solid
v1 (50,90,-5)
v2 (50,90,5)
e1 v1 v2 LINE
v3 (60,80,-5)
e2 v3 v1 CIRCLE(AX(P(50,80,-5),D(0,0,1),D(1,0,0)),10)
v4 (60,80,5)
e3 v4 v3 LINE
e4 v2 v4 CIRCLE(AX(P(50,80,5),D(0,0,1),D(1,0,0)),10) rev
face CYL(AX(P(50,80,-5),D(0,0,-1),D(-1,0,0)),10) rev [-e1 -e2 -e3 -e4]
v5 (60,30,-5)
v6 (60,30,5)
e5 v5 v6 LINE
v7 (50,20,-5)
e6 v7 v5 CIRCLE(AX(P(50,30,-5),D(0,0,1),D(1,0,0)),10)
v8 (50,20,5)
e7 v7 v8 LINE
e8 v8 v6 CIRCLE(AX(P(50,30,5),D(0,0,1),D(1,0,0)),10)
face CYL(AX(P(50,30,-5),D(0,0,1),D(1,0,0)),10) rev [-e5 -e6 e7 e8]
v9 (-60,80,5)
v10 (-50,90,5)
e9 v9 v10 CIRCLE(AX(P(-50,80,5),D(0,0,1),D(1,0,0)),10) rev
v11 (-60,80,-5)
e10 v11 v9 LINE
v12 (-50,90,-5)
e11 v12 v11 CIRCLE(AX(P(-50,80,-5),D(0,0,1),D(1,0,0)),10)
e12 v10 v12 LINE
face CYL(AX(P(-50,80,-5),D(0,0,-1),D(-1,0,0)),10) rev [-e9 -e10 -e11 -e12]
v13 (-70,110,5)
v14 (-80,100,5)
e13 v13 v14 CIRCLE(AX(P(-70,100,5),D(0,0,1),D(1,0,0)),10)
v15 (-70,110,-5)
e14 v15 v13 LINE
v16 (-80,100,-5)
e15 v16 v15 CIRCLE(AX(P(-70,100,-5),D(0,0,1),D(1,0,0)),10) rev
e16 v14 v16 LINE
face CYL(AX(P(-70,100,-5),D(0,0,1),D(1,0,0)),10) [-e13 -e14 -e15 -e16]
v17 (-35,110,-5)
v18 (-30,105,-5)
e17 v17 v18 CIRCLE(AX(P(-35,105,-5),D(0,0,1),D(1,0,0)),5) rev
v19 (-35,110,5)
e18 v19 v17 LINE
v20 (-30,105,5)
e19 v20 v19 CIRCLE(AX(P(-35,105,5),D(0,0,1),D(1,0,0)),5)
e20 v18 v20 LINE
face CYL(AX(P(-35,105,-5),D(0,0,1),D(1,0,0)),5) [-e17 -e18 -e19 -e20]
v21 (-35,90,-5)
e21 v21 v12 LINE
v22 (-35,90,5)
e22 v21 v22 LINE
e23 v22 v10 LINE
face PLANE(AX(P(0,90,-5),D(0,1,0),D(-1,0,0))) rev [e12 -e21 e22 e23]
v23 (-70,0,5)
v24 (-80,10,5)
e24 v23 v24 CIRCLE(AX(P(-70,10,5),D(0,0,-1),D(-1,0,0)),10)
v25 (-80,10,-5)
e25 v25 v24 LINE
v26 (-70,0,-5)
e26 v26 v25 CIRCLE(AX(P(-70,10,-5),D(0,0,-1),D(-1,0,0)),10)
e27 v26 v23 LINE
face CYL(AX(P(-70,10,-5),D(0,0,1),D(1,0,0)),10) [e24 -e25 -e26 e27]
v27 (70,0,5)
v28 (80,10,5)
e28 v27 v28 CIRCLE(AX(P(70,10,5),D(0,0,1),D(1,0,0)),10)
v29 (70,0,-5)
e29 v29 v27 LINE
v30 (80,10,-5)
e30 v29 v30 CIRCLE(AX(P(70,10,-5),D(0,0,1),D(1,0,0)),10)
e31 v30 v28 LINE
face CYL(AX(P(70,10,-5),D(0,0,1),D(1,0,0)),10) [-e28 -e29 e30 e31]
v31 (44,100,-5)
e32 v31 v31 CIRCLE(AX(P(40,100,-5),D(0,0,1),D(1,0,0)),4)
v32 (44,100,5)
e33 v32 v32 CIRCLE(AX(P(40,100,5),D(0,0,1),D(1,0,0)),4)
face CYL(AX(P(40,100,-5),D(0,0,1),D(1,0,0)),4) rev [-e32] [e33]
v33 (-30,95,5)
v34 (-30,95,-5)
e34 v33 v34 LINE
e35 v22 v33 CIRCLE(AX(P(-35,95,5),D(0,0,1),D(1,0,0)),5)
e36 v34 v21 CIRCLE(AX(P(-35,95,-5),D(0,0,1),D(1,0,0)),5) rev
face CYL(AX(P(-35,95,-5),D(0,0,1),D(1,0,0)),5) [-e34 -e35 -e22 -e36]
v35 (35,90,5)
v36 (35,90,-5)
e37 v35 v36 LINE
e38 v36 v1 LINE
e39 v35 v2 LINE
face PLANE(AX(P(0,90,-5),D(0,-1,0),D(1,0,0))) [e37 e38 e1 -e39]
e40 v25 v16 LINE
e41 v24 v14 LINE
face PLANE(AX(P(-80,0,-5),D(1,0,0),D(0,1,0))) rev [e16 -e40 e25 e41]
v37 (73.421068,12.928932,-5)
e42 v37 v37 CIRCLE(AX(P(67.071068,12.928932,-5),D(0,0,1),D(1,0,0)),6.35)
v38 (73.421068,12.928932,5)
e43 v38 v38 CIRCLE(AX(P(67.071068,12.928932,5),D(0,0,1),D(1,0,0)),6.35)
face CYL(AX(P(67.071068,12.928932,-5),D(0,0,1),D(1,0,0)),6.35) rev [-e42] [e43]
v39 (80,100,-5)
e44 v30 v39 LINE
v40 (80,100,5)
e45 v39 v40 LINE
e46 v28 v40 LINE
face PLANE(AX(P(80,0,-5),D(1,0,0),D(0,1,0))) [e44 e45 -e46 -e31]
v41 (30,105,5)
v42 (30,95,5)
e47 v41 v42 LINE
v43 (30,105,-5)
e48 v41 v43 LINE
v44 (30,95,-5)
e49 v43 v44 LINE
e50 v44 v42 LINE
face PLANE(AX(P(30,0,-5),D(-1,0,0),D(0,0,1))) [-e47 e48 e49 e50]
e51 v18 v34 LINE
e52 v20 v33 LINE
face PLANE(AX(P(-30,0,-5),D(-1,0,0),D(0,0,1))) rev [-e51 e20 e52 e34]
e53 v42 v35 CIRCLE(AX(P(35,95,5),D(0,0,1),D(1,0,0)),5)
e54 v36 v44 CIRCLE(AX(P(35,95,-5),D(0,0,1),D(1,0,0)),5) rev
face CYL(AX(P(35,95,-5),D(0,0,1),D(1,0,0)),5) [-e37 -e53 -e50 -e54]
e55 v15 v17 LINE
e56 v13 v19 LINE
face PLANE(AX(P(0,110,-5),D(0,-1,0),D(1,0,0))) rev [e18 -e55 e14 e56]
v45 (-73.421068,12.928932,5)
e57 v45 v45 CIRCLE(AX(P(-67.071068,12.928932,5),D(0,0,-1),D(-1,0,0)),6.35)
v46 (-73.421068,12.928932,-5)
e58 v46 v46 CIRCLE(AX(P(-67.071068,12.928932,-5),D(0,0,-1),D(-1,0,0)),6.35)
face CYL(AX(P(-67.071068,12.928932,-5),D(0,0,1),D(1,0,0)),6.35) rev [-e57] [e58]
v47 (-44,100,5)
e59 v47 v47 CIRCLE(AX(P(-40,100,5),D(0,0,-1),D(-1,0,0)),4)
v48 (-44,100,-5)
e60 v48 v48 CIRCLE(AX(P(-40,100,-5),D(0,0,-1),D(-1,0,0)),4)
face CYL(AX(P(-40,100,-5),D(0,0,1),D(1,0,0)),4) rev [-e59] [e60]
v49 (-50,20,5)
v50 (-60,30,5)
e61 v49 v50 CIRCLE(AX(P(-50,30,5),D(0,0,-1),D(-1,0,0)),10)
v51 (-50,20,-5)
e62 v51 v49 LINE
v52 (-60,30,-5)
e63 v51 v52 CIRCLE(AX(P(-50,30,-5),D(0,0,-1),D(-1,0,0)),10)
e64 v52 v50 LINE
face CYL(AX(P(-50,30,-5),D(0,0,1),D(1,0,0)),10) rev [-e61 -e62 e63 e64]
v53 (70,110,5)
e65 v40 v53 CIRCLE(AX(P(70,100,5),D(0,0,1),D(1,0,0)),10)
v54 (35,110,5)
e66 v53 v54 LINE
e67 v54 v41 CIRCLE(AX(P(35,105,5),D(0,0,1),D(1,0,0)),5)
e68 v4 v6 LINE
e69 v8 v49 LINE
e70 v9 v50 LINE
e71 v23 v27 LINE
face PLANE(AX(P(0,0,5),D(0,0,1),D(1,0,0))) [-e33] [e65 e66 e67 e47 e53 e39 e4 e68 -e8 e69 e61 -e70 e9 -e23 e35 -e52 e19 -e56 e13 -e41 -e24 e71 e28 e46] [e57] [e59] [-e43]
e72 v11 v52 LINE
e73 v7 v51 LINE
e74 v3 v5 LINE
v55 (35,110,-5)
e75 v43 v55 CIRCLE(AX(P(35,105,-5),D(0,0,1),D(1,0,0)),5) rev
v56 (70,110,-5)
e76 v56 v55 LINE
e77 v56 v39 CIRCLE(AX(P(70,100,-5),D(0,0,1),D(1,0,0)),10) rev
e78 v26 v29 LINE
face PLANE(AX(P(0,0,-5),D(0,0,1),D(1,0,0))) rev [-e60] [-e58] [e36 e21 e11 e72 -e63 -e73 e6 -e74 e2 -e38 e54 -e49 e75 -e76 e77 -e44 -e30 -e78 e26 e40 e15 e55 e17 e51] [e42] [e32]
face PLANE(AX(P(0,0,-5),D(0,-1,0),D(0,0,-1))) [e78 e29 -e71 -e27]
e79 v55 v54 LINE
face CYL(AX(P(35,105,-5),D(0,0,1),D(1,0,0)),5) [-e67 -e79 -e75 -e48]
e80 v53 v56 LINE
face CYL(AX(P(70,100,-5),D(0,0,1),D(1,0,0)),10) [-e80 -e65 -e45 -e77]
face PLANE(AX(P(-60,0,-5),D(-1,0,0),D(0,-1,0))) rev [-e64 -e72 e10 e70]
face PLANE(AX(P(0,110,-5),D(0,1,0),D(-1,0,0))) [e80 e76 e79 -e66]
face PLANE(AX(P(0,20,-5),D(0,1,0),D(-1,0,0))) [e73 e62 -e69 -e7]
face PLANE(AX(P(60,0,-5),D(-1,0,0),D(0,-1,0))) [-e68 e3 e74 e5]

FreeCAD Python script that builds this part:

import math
import FreeCAD as App
import Part
import Sketcher


def edges_at(feature, points):
    """Names of the edges that pass closest to the given points."""
    edges = feature.Shape.Edges
    near = lambda p: min(range(len(edges)), key=lambda i: edges[i].distToShape(Part.Vertex(*p))[0])
    return sorted({f"Edge{near(p) + 1}" for p in points})

doc = App.newDocument("Part")
body = doc.addObject("PartDesign::Body", "Body")

# Sketch on XY plane
sketch1 = body.newObject("Sketcher::SketchObject", "Sketch")
sketch1.AttachmentSupport = (doc.getObject("XY_Plane"), [""])
sketch1.MapMode = "FlatFace"
sketch1.addGeometry([
    Part.LineSegment(App.Vector(0, 20, 0), App.Vector(0, 0, 0)),  # 0
    Part.LineSegment(App.Vector(0, 0, 0), App.Vector(70, 0, 0)),  # 1
    Part.ArcOfCircle(Part.Circle(App.Vector(70, 10, 0), App.Vector(0, 0, 1), 10), math.radians(-90), math.radians(0)),  # 2
    Part.LineSegment(App.Vector(80, 10, 0), App.Vector(80, 110, 0)),  # 3
    Part.LineSegment(App.Vector(80, 110, 0), App.Vector(30, 110, 0)),  # 4
    Part.LineSegment(App.Vector(30, 110, 0), App.Vector(30, 90, 0)),  # 5
    Part.LineSegment(App.Vector(30, 90, 0), App.Vector(60, 90, 0)),  # 6
    Part.LineSegment(App.Vector(60, 90, 0), App.Vector(60, 30, 0)),  # 7
    Part.ArcOfCircle(Part.Circle(App.Vector(50, 30, 0), App.Vector(0, 0, 1), 10), math.radians(-90), math.radians(0)),  # 8
    Part.LineSegment(App.Vector(50, 20, 0), App.Vector(0, 20, 0)),  # 9
    Part.Circle(App.Vector(67.1, 12.9, 0), App.Vector(0, 0, 1), 6.3),  # 10
    Part.Circle(App.Vector(40, 100, 0), App.Vector(0, 0, 1), 4),  # 11
], False)
sketch1.addConstraint([
    Sketcher.Constraint("Coincident", 0, 2, 1, 1),
    Sketcher.Constraint("Tangent", 1, 2, 2, 1),
    Sketcher.Constraint("Tangent", 2, 2, 3, 1),
    Sketcher.Constraint("Coincident", 3, 2, 4, 1),
    Sketcher.Constraint("Coincident", 4, 2, 5, 1),
    Sketcher.Constraint("Coincident", 5, 2, 6, 1),
    Sketcher.Constraint("Coincident", 6, 2, 7, 1),
    Sketcher.Constraint("Tangent", 7, 2, 8, 2),
    Sketcher.Constraint("Tangent", 8, 1, 9, 1),
    Sketcher.Constraint("Coincident", 9, 2, 0, 1),
    Sketcher.Constraint("Vertical", 0),
    Sketcher.Constraint("Horizontal", 1),
    Sketcher.Constraint("Vertical", 3),
    Sketcher.Constraint("Horizontal", 4),
    Sketcher.Constraint("Vertical", 5),
    Sketcher.Constraint("Horizontal", 6),
    Sketcher.Constraint("Vertical", 7),
    Sketcher.Constraint("Horizontal", 9),
    Sketcher.Constraint("Coincident", 0, 2, -1, 1),
    Sketcher.Constraint("Equal", 2, 8),
    Sketcher.Constraint("Equal", 4, 9),
    Sketcher.Constraint("Equal", 0, 5),
    Sketcher.Constraint("Diameter", 11, 8.0),
    Sketcher.Constraint("Radius", 2, 10.0),
    Sketcher.Constraint("Diameter", 10, 12.7),
    Sketcher.Constraint("DistanceX", 1, 1, 1, 2, 70.0),
    Sketcher.Constraint("DistanceX", 4, 2, 4, 1, 50.0),
    Sketcher.Constraint("DistanceY", 0, 2, 0, 1, 20.0),
    Sketcher.Constraint("DistanceY", 3, 1, 3, 2, 100.0),
    Sketcher.Constraint("DistanceX", -1, 1, 11, 3, 40.0),
    Sketcher.Constraint("DistanceY", -1, 1, 11, 3, 100.0),
    Sketcher.Constraint("DistanceX", -1, 1, 10, 3, 67.071068),
    Sketcher.Constraint("DistanceY", -1, 1, 10, 3, 12.928932),
])
pad1 = body.newObject("PartDesign::Pad", "Pad")
pad1.Profile = sketch1
pad1.Length = 10
pad1.Midplane = True
doc.recompute()

mirrored = body.newObject("PartDesign::Mirrored", "Mirrored")
mirrored.Originals = [pad1]
mirrored.MirrorPlane = (doc.getObject("YZ_Plane"), [""])
body.Tip = mirrored
doc.recompute()

fillet = body.newObject("PartDesign::Fillet", "Fillet")
fillet.Base = (mirrored, edges_at(mirrored, [
    (60, 90, 0),
    (80, 110, 0),
    (-80, 110, 0),
    (-60, 90, 0),
]))
fillet.Radius = 10
doc.recompute()

fillet2 = body.newObject("PartDesign::Fillet", "Fillet001")
fillet2.Base = (fillet, edges_at(fillet, [
    (30, 90, 0),
    (30, 110, 0),
    (-30, 110, 0),
    (-30, 90, 0),
]))
fillet2.Radius = 5

doc.recompute()
